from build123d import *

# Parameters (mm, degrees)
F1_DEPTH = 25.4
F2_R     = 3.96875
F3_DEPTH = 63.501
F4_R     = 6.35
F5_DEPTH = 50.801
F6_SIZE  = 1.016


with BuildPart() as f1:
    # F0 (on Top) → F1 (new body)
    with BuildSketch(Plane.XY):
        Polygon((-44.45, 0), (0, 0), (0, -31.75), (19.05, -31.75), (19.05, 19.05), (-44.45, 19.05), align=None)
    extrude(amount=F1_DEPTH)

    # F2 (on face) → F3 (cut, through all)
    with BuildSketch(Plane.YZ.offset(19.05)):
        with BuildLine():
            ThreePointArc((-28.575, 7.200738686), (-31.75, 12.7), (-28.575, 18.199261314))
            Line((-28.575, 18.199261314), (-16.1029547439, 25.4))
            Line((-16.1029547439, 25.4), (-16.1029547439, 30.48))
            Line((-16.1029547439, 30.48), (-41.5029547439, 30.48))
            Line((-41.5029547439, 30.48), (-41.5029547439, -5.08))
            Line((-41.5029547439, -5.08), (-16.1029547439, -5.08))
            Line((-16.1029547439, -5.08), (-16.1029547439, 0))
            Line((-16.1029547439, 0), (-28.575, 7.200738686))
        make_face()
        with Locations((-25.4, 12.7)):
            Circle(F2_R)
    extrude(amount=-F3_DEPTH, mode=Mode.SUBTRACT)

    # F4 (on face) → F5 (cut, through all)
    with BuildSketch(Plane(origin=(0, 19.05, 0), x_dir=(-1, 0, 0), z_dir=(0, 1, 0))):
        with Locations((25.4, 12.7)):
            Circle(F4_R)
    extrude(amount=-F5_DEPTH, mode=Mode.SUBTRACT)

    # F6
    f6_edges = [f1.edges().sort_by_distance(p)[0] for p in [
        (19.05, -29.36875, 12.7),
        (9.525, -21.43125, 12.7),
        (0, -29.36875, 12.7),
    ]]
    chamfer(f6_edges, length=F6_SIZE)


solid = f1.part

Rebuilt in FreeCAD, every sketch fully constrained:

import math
import FreeCAD as App
import Part
import Sketcher

V = App.Vector
Q = App.Units.Quantity


def edges_at(feature, points):
    """Names of the edges that pass closest to the given points."""
    edges = feature.Shape.Edges
    near = lambda p: min(range(len(edges)), key=lambda i: edges[i].distToShape(Part.Vertex(*p))[0])
    return sorted({f"Edge{near(p) + 1}" for p in points})

doc = App.newDocument("Part")
body = doc.addObject("PartDesign::Body", "Body")

sketch1 = doc.addObject("Sketcher::SketchObject", "Sketch")
body.addObject(sketch1)
sketch1.AttachmentSupport = (doc.XY_Plane, [""])
sketch1.MapMode = "FlatFace"
sketch1.addGeometry([
    Part.LineSegment(V(-44, 0, 0), V(0, 0, 0)),
    Part.LineSegment(V(0, 0, 0), V(0, -32, 0)),
    Part.LineSegment(V(0, -32, 0), V(19, -32, 0)),
    Part.LineSegment(V(19, -32, 0), V(19, 19, 0)),
    Part.LineSegment(V(19, 19, 0), V(-44, 19, 0)),
    Part.LineSegment(V(-44, 19, 0), V(-44, 0, 0)),
], False)
sketch1.addConstraint([
    Sketcher.Constraint("Coincident", 0, 2, 1, 1),
    Sketcher.Constraint("Coincident", 1, 2, 2, 1),
    Sketcher.Constraint("Coincident", 2, 2, 3, 1),
    Sketcher.Constraint("Coincident", 3, 2, 4, 1),
    Sketcher.Constraint("Coincident", 4, 2, 5, 1),
    Sketcher.Constraint("Coincident", 5, 2, 0, 1),
    Sketcher.Constraint("Horizontal", 0),
    Sketcher.Constraint("Vertical", 1),
    Sketcher.Constraint("Horizontal", 2),
    Sketcher.Constraint("Vertical", 3),
    Sketcher.Constraint("Horizontal", 4),
    Sketcher.Constraint("Vertical", 5),
    Sketcher.Constraint("Coincident", 0, 2, -1, 1),
    Sketcher.Constraint("Equal", 2, 5),
    Sketcher.Constraint("DistanceY", 3, 1, 3, 2, Q("2 in")),
    Sketcher.Constraint("DistanceX", 4, 2, 4, 1, Q("2.5 in")),
    Sketcher.Constraint("DistanceX", 0, 1, 0, 2, Q("1.75 in")),
])
pad1 = doc.addObject("PartDesign::Pad", "Pad")
body.addObject(pad1)
pad1.Profile = sketch1
pad1.Length = Q("1 in")

sketch2 = doc.addObject("Sketcher::SketchObject", "Sketch001")
body.addObject(sketch2)
sketch2.AttachmentSupport = (doc.YZ_Plane, [""])
sketch2.MapMode = "FlatFace"
sketch2.AttachmentOffset = App.Placement(V(0, 0, 0.75 * 25.4), App.Rotation())
sketch2.addGeometry([
    Part.ArcOfCircle(Part.Circle(V(-25.4, 12.7, 0), V(0, 0, 1), 6.3), math.radians(120), math.radians(240)),
    Part.LineSegment(V(-28.6, 18.2, 0), V(-16.1, 25.4, 0)),
    Part.LineSegment(V(-16.1, 25.4, 0), V(-16.1, 30.5, 0)),
    Part.LineSegment(V(-16.1, 30.5, 0), V(-41.5, 30.5, 0)),
    Part.LineSegment(V(-41.5, 30.5, 0), V(-41.5, -5.1, 0)),
    Part.LineSegment(V(-41.5, -5.1, 0), V(-16.1, -5.1, 0)),
    Part.LineSegment(V(-16.1, -5.1, 0), V(-16.1, 0, 0)),
    Part.LineSegment(V(-16.1, 0, 0), V(-28.6, 7.2, 0)),
    Part.Circle(V(-25.4, 12.7, 0), V(0, 0, 1), 4),
], False)
sketch2.addConstraint([
    Sketcher.Constraint("Tangent", 0, 1, 1, 1),
    Sketcher.Constraint("Coincident", 1, 2, 2, 1),
    Sketcher.Constraint("Coincident", 2, 2, 3, 1),
    Sketcher.Constraint("Coincident", 3, 2, 4, 1),
    Sketcher.Constraint("Coincident", 4, 2, 5, 1),
    Sketcher.Constraint("Coincident", 5, 2, 6, 1),
    Sketcher.Constraint("Coincident", 6, 2, 7, 1),
    Sketcher.Constraint("Tangent", 7, 2, 0, 2),
    Sketcher.Constraint("Vertical", 2),
    Sketcher.Constraint("Horizontal", 3),
    Sketcher.Constraint("Vertical", 4),
    Sketcher.Constraint("Horizontal", 5),
    Sketcher.Constraint("Vertical", 6),
    Sketcher.Constraint("Coincident", 8, 3, 0, 3),
    Sketcher.Constraint("PointOnObject", 6, 2, -1),
    Sketcher.Constraint("Vertical", 2, 2, 5, 2),
    Sketcher.Constraint("Vertical", 0, 1, 7, 2),
    Sketcher.Constraint("Equal", 2, 6),
    Sketcher.Constraint("DistanceX", 3, 2, 3, 1, Q("1 in")),
    Sketcher.Constraint("Radius", 0, Q("0.25 in")),
    Sketcher.Constraint("Diameter", 8, Q("0.3125 in")),
    Sketcher.Constraint("DistanceY", 2, 1, 2, 2, Q("0.2 in")),
    Sketcher.Constraint("DistanceY", 4, 2, 4, 1, Q("1.4 in")),
    Sketcher.Constraint("DistanceX", 0, 3, -1, 1, Q("1 in")),
    Sketcher.Constraint("Angle", 1, Q("30 deg")),
])
pocket1 = doc.addObject("PartDesign::Pocket", "Pocket")
body.addObject(pocket1)
pocket1.Profile = sketch2
pocket1.Type = "ThroughAll"

sketch3 = doc.addObject("Sketcher::SketchObject", "Sketch002")
body.addObject(sketch3)
sketch3.AttachmentSupport = (doc.XZ_Plane, [""])
sketch3.MapMode = "FlatFace"
sketch3.AttachmentOffset = App.Placement(V(0, 0, -0.75 * 25.4), App.Rotation())
sketch3.addGeometry(Part.Circle(V(-25, 13, 0), V(0, 0, 1), 6), False)
sketch3.addConstraint([
    Sketcher.Constraint("Diameter", 0, Q("0.5 in")),
    Sketcher.Constraint("DistanceX", 0, 3, -1, 1, Q("1 in")),
    Sketcher.Constraint("DistanceY", -1, 1, 0, 3, Q("0.5 in")),
])
pocket2 = doc.addObject("PartDesign::Pocket", "Pocket001")
body.addObject(pocket2)
pocket2.Profile = sketch3
pocket2.Type = "ThroughAll"
pocket2.Reversed = True
doc.recompute()

chamfer = doc.addObject("PartDesign::Chamfer", "Chamfer")
body.addObject(chamfer)
chamfer.Base = (pocket2, edges_at(pocket2, [(19.05, -29.369, 12.7), (9.525, -21.431, 12.7), (0, -29.369, 12.7)]))
chamfer.Size = Q("0.04 in")

doc.recompute()
